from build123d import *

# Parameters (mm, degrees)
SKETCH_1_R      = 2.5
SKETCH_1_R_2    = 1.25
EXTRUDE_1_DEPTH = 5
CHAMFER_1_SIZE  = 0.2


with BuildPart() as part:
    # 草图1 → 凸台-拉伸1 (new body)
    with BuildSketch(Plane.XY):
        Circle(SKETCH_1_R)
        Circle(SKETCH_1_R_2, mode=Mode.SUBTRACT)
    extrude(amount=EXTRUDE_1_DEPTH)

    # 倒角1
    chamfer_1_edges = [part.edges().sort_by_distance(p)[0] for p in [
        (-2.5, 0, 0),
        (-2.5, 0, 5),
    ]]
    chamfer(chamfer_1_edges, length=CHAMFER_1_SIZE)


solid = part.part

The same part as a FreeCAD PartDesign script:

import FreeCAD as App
import Part
import Sketcher


def edges_at(feature, points):
    """Names of the edges that pass closest to the given points."""
    edges = feature.Shape.Edges
    near = lambda p: min(range(len(edges)), key=lambda i: edges[i].distToShape(Part.Vertex(*p))[0])
    return sorted({f"Edge{near(p) + 1}" for p in points})

doc = App.newDocument("Part")
body = doc.addObject("PartDesign::Body", "Body")

# Sketch on XY plane
sketch1 = body.newObject("Sketcher::SketchObject", "Sketch")
sketch1.AttachmentSupport = (doc.getObject("XY_Plane"), [""])
sketch1.MapMode = "FlatFace"
sketch1.addGeometry([
    Part.Circle(App.Vector(0, 0, 0), App.Vector(0, 0, 1), 2.5),
    Part.Circle(App.Vector(0, 0, 0), App.Vector(0, 0, 1), 1.2),
], False)
sketch1.addConstraint([
    Sketcher.Constraint("Coincident", 0, 3, -1, 1),
    Sketcher.Constraint("Coincident", 1, 3, -1, 1),
    Sketcher.Constraint("Diameter", 0, 5.0),
    Sketcher.Constraint("Diameter", 1, 2.5),
])
pad1 = body.newObject("PartDesign::Pad", "Pad")
pad1.Profile = sketch1
pad1.Length = 5
doc.recompute()

chamfer = body.newObject("PartDesign::Chamfer", "Chamfer")
chamfer.Base = (pad1, edges_at(pad1, [(-2.5, 0, 0), (-2.5, 0, 5)]))
chamfer.Size = 0.2

doc.recompute()
